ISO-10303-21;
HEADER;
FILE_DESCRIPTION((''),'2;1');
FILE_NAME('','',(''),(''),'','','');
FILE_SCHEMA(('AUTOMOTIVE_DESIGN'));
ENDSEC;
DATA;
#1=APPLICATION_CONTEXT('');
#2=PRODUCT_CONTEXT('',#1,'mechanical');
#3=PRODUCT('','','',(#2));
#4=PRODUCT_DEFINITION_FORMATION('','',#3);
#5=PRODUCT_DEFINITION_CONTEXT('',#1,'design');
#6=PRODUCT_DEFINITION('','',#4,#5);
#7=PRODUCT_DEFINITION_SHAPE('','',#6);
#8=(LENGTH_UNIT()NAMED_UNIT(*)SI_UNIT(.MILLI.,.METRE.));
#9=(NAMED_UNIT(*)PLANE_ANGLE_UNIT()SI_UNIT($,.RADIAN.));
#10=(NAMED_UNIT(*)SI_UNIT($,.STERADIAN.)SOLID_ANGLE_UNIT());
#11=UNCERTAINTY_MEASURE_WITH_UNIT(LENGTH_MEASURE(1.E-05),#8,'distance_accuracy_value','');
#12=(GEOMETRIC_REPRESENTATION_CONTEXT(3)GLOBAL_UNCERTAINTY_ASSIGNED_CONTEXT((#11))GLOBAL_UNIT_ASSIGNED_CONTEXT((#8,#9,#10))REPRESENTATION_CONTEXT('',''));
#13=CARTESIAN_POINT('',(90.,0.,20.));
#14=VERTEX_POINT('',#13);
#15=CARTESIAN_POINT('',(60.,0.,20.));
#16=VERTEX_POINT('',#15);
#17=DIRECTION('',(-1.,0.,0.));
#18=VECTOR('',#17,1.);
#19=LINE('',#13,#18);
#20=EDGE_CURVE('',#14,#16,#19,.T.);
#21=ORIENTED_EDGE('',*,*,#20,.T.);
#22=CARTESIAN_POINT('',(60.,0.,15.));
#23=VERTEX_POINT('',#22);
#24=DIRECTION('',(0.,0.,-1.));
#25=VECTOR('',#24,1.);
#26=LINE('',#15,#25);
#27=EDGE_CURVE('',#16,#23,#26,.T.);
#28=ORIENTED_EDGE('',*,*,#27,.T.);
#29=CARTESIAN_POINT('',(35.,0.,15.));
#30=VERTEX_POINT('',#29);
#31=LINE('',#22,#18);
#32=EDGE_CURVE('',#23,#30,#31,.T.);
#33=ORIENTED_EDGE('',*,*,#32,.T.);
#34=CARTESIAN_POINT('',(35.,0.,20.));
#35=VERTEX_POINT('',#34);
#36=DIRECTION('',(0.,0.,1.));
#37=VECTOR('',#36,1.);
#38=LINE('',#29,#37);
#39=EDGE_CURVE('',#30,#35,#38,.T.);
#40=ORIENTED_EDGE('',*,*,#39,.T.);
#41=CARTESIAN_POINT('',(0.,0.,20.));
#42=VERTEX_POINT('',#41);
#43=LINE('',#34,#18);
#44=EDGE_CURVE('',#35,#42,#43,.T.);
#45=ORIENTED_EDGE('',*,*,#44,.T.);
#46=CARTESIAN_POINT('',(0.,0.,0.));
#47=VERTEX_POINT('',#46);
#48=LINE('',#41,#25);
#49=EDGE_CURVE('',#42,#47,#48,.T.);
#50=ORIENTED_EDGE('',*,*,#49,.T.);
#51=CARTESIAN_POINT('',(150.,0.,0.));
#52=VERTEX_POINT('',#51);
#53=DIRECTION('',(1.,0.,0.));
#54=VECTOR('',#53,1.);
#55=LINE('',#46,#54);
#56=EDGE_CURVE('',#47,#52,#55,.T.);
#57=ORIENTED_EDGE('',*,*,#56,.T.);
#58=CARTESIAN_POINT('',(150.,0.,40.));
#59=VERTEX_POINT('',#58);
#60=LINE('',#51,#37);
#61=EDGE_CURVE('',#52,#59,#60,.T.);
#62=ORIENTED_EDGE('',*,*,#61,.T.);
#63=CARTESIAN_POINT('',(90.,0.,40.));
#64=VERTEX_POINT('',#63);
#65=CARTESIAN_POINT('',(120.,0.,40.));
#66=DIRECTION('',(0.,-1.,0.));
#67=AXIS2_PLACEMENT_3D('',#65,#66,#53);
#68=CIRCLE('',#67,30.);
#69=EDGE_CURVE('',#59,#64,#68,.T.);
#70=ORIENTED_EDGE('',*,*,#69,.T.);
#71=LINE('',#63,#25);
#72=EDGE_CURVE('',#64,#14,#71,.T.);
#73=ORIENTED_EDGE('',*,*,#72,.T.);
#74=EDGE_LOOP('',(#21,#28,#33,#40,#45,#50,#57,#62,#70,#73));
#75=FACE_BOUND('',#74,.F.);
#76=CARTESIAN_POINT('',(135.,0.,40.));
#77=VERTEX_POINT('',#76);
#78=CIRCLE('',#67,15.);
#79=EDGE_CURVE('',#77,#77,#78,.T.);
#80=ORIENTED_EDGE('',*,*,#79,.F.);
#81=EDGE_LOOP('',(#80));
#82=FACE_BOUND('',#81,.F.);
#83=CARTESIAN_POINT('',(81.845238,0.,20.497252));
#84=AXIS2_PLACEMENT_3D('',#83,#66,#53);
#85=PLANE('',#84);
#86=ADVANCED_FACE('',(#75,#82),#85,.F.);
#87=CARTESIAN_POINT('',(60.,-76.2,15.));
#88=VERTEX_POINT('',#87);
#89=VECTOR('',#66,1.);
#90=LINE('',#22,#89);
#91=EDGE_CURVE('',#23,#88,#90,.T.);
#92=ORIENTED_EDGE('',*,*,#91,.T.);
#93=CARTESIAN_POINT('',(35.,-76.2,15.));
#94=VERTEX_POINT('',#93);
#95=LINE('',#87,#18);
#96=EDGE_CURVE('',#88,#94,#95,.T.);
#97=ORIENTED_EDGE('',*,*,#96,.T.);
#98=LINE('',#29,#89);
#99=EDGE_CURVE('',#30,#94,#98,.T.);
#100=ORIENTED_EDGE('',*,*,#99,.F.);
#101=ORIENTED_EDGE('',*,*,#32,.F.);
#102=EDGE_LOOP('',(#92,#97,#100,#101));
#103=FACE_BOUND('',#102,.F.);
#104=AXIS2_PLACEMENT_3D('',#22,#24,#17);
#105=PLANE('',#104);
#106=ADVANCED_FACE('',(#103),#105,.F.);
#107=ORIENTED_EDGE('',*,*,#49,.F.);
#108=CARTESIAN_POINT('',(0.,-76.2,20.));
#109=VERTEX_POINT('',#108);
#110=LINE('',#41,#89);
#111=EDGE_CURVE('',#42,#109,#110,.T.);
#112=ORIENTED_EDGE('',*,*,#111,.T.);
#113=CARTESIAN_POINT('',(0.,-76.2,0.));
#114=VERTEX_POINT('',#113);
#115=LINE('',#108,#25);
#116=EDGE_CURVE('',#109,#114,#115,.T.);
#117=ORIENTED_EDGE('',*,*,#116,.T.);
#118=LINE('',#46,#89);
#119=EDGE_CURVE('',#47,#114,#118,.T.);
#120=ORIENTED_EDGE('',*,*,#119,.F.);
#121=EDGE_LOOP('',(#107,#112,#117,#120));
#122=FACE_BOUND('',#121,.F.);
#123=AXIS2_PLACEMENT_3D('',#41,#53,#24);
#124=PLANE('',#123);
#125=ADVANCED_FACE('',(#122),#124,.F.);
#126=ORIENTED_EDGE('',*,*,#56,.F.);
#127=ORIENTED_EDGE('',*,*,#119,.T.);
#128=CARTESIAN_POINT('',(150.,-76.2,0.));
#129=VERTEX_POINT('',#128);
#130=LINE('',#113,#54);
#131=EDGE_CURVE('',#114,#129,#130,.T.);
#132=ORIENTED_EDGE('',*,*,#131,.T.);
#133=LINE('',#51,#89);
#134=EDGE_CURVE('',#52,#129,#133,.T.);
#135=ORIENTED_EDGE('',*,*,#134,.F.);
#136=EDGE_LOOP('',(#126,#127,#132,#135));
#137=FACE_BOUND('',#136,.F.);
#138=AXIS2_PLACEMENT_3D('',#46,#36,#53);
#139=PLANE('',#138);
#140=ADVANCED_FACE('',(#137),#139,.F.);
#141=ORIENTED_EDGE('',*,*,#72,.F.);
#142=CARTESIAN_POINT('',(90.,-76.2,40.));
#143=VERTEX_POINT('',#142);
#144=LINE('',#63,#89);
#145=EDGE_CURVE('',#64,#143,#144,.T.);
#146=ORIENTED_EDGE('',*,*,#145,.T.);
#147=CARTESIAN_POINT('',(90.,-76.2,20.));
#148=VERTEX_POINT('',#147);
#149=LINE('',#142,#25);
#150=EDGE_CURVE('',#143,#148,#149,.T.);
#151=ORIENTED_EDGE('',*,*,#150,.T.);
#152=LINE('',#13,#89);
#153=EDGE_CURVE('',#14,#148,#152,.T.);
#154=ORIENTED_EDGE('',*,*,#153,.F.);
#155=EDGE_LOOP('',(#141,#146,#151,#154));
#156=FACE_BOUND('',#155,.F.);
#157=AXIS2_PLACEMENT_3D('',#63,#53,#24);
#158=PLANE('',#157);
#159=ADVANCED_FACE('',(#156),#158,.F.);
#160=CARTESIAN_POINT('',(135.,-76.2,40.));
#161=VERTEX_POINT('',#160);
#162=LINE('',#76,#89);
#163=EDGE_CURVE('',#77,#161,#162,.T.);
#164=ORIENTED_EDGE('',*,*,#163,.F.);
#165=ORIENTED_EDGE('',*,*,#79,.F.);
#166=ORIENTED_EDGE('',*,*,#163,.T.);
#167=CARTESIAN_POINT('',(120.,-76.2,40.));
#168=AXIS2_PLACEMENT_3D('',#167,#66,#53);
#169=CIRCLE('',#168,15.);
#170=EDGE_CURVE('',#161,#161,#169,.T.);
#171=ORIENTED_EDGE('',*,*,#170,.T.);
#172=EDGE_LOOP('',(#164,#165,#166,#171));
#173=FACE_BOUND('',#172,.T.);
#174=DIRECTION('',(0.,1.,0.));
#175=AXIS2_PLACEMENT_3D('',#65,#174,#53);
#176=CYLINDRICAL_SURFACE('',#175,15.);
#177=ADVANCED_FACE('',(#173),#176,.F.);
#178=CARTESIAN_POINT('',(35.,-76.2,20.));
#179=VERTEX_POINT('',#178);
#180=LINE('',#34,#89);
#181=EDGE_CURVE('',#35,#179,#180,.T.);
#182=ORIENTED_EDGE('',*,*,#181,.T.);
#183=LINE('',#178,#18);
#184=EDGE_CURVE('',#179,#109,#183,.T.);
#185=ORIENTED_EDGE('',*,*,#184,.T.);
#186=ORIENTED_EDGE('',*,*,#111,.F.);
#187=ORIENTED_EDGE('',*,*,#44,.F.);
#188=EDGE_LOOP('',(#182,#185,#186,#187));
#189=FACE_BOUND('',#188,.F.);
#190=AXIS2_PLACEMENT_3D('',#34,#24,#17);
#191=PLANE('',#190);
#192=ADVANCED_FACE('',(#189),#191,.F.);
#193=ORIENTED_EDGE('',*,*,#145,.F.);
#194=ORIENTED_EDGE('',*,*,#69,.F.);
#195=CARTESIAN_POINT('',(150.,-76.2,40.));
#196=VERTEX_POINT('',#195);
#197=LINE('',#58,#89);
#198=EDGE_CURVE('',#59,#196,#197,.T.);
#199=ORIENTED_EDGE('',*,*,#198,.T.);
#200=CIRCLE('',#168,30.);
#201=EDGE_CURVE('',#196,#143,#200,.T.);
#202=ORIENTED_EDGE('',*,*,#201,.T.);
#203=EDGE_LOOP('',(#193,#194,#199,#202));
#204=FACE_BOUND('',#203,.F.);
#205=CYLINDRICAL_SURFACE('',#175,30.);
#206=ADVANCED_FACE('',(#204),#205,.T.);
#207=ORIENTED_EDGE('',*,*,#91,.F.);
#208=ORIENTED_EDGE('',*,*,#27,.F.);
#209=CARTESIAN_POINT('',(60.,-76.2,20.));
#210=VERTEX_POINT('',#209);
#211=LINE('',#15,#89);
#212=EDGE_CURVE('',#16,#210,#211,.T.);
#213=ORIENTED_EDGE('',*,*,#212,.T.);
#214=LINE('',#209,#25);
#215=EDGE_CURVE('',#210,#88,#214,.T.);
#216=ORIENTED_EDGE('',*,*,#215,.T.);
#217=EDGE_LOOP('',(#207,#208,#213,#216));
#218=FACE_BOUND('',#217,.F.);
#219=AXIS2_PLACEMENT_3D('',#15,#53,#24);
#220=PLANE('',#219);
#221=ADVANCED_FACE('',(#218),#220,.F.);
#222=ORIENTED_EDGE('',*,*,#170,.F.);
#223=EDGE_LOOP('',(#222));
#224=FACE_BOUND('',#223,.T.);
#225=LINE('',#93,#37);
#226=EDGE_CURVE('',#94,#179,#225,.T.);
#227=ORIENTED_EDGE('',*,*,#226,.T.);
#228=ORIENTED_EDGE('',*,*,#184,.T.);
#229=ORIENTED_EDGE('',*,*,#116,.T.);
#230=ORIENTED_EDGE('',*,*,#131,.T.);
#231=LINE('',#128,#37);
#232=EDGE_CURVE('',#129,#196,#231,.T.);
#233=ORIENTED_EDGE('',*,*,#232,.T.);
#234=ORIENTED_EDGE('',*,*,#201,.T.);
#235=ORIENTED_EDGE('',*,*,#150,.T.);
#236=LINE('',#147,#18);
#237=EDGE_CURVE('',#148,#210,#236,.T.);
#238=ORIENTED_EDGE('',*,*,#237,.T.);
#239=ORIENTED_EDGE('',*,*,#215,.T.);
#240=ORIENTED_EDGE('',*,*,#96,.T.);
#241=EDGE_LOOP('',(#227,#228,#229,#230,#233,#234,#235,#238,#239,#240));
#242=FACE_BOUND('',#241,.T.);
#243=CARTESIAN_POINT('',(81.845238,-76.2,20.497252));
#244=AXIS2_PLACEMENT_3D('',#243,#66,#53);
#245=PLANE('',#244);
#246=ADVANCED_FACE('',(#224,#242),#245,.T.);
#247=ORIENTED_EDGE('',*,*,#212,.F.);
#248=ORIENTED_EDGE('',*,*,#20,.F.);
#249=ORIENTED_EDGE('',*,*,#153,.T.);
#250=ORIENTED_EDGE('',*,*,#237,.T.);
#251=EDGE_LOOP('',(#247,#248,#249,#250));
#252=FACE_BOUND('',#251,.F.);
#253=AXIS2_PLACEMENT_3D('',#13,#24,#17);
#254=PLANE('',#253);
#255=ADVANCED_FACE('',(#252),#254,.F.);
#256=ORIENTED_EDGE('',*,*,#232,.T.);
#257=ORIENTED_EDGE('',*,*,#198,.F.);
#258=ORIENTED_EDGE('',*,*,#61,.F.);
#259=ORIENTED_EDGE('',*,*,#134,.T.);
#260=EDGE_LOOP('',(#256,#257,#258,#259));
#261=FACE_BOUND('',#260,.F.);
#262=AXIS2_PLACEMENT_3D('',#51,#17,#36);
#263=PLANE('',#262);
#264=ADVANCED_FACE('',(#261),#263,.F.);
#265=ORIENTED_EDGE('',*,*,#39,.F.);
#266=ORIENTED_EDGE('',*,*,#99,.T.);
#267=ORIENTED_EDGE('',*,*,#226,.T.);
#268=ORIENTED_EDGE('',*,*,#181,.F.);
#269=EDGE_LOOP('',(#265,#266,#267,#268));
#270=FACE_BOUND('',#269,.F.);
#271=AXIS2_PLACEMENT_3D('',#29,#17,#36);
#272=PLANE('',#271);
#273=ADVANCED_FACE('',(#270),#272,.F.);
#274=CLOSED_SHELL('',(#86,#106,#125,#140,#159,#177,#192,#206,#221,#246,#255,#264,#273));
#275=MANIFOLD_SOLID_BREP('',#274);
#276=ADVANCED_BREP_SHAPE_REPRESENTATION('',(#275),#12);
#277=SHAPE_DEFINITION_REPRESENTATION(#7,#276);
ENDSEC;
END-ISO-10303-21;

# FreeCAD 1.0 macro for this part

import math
import FreeCAD as App
import Part
import Sketcher

V = App.Vector

doc = App.newDocument("Part")
body = doc.addObject("PartDesign::Body", "Body")

sketch1 = body.newObject("Sketcher::SketchObject", "Sketch")
sketch1.AttachmentSupport = (doc.getObject("XZ_Plane"), [""])
sketch1.MapMode = "FlatFace"
sketch1.addGeometry([
    Part.LineSegment(V(0, 20, 0), V(0, 0, 0)),
    Part.LineSegment(V(0, 0, 0), V(150, 0, 0)),
    Part.LineSegment(V(150, 0, 0), V(150, 40, 0)),
    Part.ArcOfCircle(Part.Circle(V(120, 40, 0), V(0, 0, 1), 30), math.radians(0), math.radians(180)),
    Part.LineSegment(V(90, 40, 0), V(90, 20, 0)),
    Part.LineSegment(V(90, 20, 0), V(60, 20, 0)),
    Part.LineSegment(V(60, 20, 0), V(60, 15, 0)),
    Part.LineSegment(V(60, 15, 0), V(35, 15, 0)),
    Part.LineSegment(V(35, 15, 0), V(35, 20, 0)),
    Part.LineSegment(V(35, 20, 0), V(0, 20, 0)),
    Part.Circle(V(120, 40, 0), V(0, 0, 1), 15),
], False)
sketch1.addConstraint([
    Sketcher.Constraint("Coincident", 0, 2, 1, 1),
    Sketcher.Constraint("Coincident", 1, 2, 2, 1),
    Sketcher.Constraint("Tangent", 2, 2, 3, 1),
    Sketcher.Constraint("Tangent", 3, 2, 4, 1),
    Sketcher.Constraint("Coincident", 4, 2, 5, 1),
    Sketcher.Constraint("Coincident", 5, 2, 6, 1),
    Sketcher.Constraint("Coincident", 6, 2, 7, 1),
    Sketcher.Constraint("Coincident", 7, 2, 8, 1),
    Sketcher.Constraint("Coincident", 8, 2, 9, 1),
    Sketcher.Constraint("Coincident", 9, 2, 0, 1),
    Sketcher.Constraint("Vertical", 0),
    Sketcher.Constraint("Horizontal", 1),
    Sketcher.Constraint("Vertical", 2),
    Sketcher.Constraint("Vertical", 4),
    Sketcher.Constraint("Horizontal", 5),
    Sketcher.Constraint("Vertical", 6),
    Sketcher.Constraint("Horizontal", 7),
    Sketcher.Constraint("Vertical", 8),
    Sketcher.Constraint("Horizontal", 9),
    Sketcher.Constraint("Coincident", 0, 2, -1, 1),
    Sketcher.Constraint("Coincident", 10, 3, 3, 3),
    Sketcher.Constraint("Horizontal", 5, 2, 8, 2),
    Sketcher.Constraint("Equal", 0, 4),
    Sketcher.Constraint("Diameter", 10, 30.0),
    Sketcher.Constraint("Radius", 3, 30.0),
    Sketcher.Constraint("DistanceX", 1, 1, 1, 2, 150.0),
    Sketcher.Constraint("DistanceX", 5, 2, 5, 1, 30.0),
    Sketcher.Constraint("DistanceX", 7, 2, 7, 1, 25.0),
    Sketcher.Constraint("DistanceY", 0, 2, 0, 1, 20.0),
    Sketcher.Constraint("DistanceY", 6, 2, 6, 1, 5.0),
])
pad1 = body.newObject("PartDesign::Pad", "Pad")
pad1.Profile = sketch1
pad1.Length = 76.2

doc.recompute()
